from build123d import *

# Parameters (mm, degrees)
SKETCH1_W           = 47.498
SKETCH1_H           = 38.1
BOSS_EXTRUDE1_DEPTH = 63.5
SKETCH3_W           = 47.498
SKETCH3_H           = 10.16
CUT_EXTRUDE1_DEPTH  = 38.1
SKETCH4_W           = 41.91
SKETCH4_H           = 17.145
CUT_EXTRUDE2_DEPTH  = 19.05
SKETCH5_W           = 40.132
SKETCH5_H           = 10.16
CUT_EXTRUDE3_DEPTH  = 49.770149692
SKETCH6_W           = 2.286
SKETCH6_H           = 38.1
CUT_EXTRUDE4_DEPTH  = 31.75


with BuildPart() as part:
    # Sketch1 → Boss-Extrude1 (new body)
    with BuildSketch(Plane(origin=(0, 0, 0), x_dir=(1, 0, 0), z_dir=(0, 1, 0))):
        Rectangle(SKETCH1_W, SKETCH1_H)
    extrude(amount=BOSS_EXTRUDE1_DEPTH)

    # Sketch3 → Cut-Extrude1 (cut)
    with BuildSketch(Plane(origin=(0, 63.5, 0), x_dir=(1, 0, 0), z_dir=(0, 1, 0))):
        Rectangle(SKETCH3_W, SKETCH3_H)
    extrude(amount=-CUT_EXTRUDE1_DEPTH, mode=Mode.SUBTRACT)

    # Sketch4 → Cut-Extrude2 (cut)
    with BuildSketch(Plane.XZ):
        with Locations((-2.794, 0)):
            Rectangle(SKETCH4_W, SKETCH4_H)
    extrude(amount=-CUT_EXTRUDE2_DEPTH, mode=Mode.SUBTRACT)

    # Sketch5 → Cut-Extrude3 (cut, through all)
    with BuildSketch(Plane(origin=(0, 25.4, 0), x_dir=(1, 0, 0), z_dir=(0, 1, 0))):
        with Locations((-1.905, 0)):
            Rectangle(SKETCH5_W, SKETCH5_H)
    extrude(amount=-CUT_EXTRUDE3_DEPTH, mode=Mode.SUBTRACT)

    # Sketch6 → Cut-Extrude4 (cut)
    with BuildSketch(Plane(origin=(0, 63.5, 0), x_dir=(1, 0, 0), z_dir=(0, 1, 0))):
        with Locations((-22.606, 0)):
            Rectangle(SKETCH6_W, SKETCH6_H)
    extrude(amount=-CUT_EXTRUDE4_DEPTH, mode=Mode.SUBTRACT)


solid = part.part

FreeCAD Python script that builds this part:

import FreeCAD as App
import Part
import Sketcher
Q = App.Units.Quantity


def add_polygon(sketch, points):
    """Adds a closed chain of lines whose ends are joined by coincident constraints."""
    first, n = sketch.GeometryCount, len(points)
    for a, b in zip(points, points[1:] + points[:1]):
        sketch.addGeometry(Part.LineSegment(App.Vector(*a, 0), App.Vector(*b, 0)), False)
    for i in range(n):
        sketch.addConstraint(Sketcher.Constraint("Coincident", first + i, 2, first + (i + 1) % n, 1))

doc = App.newDocument("Part")
params = doc.addObject("Spreadsheet::Sheet", "Params")
for row, (alias, value) in enumerate([
    ("sketch1_height", "1.5 in"),
    ("sketch1_width", "1.87 in"),
    ("pad1_length", "2.5 in"),
    ("sketch2_height", "0.4 in"),
    ("sketch2_width", "1.87 in"),
    ("pocket1_length", "1.5 in"),
    ("sketch3_width", "1.65 in"),
    ("sketch3_height", "0.675 in"),
    ("pocket2_length", "0.75 in"),
    ("sketch4_height", "0.4 in"),
    ("sketch4_width", "1.58 in"),
    ("sketch5_height", "1.5 in"),
    ("sketch5_width", "0.09 in"),
    ("pocket4_length", "1.25 in"),
], start=1):
    params.set(f"A{row}", alias)
    params.set(f"B{row}", "=" + value)
    params.setAlias(f"B{row}", alias)

body = doc.addObject("PartDesign::Body", "Body")

# Sketch on XZ plane
sketch1 = body.newObject("Sketcher::SketchObject", "Sketch")
sketch1.AttachmentSupport = (doc.getObject("XZ_Plane"), [""])
sketch1.MapMode = "FlatFace"
add_polygon(sketch1, [(-24, -19), (-24, 19), (24, 19), (24, -19)])  # lines 0-3
sketch1.addConstraint([
    Sketcher.Constraint("Vertical", 0),
    Sketcher.Constraint("Horizontal", 1),
    Sketcher.Constraint("Vertical", 2),
    Sketcher.Constraint("Horizontal", 3),
    Sketcher.Constraint("Symmetric", 0, 2, 2, 2, -1, 1),
    Sketcher.Constraint("DistanceY", 0, 1, 0, 2, Q("1.5 in")),
    Sketcher.Constraint("DistanceX", 1, 1, 1, 2, Q("1.87 in")),
])
sketch1.setExpression("Constraints[9]", "Params.sketch1_height")
sketch1.setExpression("Constraints[10]", "Params.sketch1_width")
pad1 = body.newObject("PartDesign::Pad", "Pad")
pad1.Profile = sketch1
pad1.setExpression("Length", "Params.pad1_length")
pad1.Reversed = True

# Sketch on XZ plane
sketch2 = body.newObject("Sketcher::SketchObject", "Sketch001")
sketch2.AttachmentSupport = (doc.getObject("XZ_Plane"), [""])
sketch2.MapMode = "FlatFace"
sketch2.AttachmentOffset = App.Placement(App.Vector(0, 0, -2.5 * 25.4), App.Rotation())
add_polygon(sketch2, [(-24, -5), (-24, 5), (24, 5), (24, -5)])  # lines 0-3
sketch2.addConstraint([
    Sketcher.Constraint("Vertical", 0),
    Sketcher.Constraint("Horizontal", 1),
    Sketcher.Constraint("Vertical", 2),
    Sketcher.Constraint("Horizontal", 3),
    Sketcher.Constraint("Symmetric", 0, 2, 2, 2, -1, 1),
    Sketcher.Constraint("DistanceY", 0, 1, 0, 2, Q("0.4 in")),
    Sketcher.Constraint("DistanceX", 1, 1, 1, 2, Q("1.87 in")),
])
sketch2.setExpression("Constraints[9]", "Params.sketch2_height")
sketch2.setExpression("Constraints[10]", "Params.sketch2_width")
pocket1 = body.newObject("PartDesign::Pocket", "Pocket")
pocket1.Profile = sketch2
pocket1.setExpression("Length", "Params.pocket1_length")
pocket1.Reversed = True

# Sketch on XZ plane
sketch3 = body.newObject("Sketcher::SketchObject", "Sketch002")
sketch3.AttachmentSupport = (doc.getObject("XZ_Plane"), [""])
sketch3.MapMode = "FlatFace"
add_polygon(sketch3, [(-24, 9), (-24, -9), (18, -9), (18, 9)])  # lines 0-3
sketch3.addConstraint([
    Sketcher.Constraint("Vertical", 0),
    Sketcher.Constraint("Horizontal", 1),
    Sketcher.Constraint("Vertical", 2),
    Sketcher.Constraint("Horizontal", 3),
    Sketcher.Constraint("DistanceX", 1, 1, 1, 2, Q("1.65 in")),
    Sketcher.Constraint("DistanceY", 0, 2, 0, 1, Q("0.675 in")),
    Sketcher.Constraint("DistanceX", 0, 2, -1, 1, Q("0.935 in")),
    Sketcher.Constraint("DistanceY", 0, 2, -1, 1, Q("0.3375 in")),
])
sketch3.setExpression("Constraints[8]", "Params.sketch3_width")
sketch3.setExpression("Constraints[9]", "Params.sketch3_height")
pocket2 = body.newObject("PartDesign::Pocket", "Pocket001")
pocket2.Profile = sketch3
pocket2.setExpression("Length", "Params.pocket2_length")

# Sketch on XZ plane
sketch4 = body.newObject("Sketcher::SketchObject", "Sketch003")
sketch4.AttachmentSupport = (doc.getObject("XZ_Plane"), [""])
sketch4.MapMode = "FlatFace"
sketch4.AttachmentOffset = App.Placement(App.Vector(0, 0, -1 * 25.4), App.Rotation())
add_polygon(sketch4, [(-22, -5), (-22, 5), (18, 5), (18, -5)])  # lines 0-3
sketch4.addConstraint([
    Sketcher.Constraint("Vertical", 0),
    Sketcher.Constraint("Horizontal", 1),
    Sketcher.Constraint("Vertical", 2),
    Sketcher.Constraint("Horizontal", 3),
    Sketcher.Constraint("DistanceY", 0, 1, 0, 2, Q("0.4 in")),
    Sketcher.Constraint("DistanceX", 1, 1, 1, 2, Q("1.58 in")),
    Sketcher.Constraint("DistanceY", -1, 1, 0, 2, Q("0.2 in")),
    Sketcher.Constraint("DistanceX", 0, 2, -1, 1, Q("0.865 in")),
])
sketch4.setExpression("Constraints[8]", "Params.sketch4_height")
sketch4.setExpression("Constraints[9]", "Params.sketch4_width")
pocket3 = body.newObject("PartDesign::Pocket", "Pocket002")
pocket3.Profile = sketch4
pocket3.Type = "ThroughAll"
pocket3.Reversed = True

# Sketch on XZ plane
sketch5 = body.newObject("Sketcher::SketchObject", "Sketch004")
sketch5.AttachmentSupport = (doc.getObject("XZ_Plane"), [""])
sketch5.MapMode = "FlatFace"
sketch5.AttachmentOffset = App.Placement(App.Vector(0, 0, -2.5 * 25.4), App.Rotation())
add_polygon(sketch5, [(-23.7, -19.1), (-23.7, 19.1), (-21.5, 19.1), (-21.5, -19.1)])  # lines 0-3
sketch5.addConstraint([
    Sketcher.Constraint("Vertical", 0),
    Sketcher.Constraint("Horizontal", 1),
    Sketcher.Constraint("Vertical", 2),
    Sketcher.Constraint("Horizontal", 3),
    Sketcher.Constraint("DistanceY", 0, 1, 0, 2, Q("1.5 in")),
    Sketcher.Constraint("DistanceX", 1, 1, 1, 2, Q("0.09 in")),
    Sketcher.Constraint("DistanceY", -1, 1, 0, 2, Q("0.75 in")),
    Sketcher.Constraint("DistanceX", 0, 2, -1, 1, Q("0.935 in")),
])
sketch5.setExpression("Constraints[8]", "Params.sketch5_height")
sketch5.setExpression("Constraints[9]", "Params.sketch5_width")
pocket4 = body.newObject("PartDesign::Pocket", "Pocket003")
pocket4.Profile = sketch5
pocket4.setExpression("Length", "Params.pocket4_length")
pocket4.Reversed = True

doc.recompute()
